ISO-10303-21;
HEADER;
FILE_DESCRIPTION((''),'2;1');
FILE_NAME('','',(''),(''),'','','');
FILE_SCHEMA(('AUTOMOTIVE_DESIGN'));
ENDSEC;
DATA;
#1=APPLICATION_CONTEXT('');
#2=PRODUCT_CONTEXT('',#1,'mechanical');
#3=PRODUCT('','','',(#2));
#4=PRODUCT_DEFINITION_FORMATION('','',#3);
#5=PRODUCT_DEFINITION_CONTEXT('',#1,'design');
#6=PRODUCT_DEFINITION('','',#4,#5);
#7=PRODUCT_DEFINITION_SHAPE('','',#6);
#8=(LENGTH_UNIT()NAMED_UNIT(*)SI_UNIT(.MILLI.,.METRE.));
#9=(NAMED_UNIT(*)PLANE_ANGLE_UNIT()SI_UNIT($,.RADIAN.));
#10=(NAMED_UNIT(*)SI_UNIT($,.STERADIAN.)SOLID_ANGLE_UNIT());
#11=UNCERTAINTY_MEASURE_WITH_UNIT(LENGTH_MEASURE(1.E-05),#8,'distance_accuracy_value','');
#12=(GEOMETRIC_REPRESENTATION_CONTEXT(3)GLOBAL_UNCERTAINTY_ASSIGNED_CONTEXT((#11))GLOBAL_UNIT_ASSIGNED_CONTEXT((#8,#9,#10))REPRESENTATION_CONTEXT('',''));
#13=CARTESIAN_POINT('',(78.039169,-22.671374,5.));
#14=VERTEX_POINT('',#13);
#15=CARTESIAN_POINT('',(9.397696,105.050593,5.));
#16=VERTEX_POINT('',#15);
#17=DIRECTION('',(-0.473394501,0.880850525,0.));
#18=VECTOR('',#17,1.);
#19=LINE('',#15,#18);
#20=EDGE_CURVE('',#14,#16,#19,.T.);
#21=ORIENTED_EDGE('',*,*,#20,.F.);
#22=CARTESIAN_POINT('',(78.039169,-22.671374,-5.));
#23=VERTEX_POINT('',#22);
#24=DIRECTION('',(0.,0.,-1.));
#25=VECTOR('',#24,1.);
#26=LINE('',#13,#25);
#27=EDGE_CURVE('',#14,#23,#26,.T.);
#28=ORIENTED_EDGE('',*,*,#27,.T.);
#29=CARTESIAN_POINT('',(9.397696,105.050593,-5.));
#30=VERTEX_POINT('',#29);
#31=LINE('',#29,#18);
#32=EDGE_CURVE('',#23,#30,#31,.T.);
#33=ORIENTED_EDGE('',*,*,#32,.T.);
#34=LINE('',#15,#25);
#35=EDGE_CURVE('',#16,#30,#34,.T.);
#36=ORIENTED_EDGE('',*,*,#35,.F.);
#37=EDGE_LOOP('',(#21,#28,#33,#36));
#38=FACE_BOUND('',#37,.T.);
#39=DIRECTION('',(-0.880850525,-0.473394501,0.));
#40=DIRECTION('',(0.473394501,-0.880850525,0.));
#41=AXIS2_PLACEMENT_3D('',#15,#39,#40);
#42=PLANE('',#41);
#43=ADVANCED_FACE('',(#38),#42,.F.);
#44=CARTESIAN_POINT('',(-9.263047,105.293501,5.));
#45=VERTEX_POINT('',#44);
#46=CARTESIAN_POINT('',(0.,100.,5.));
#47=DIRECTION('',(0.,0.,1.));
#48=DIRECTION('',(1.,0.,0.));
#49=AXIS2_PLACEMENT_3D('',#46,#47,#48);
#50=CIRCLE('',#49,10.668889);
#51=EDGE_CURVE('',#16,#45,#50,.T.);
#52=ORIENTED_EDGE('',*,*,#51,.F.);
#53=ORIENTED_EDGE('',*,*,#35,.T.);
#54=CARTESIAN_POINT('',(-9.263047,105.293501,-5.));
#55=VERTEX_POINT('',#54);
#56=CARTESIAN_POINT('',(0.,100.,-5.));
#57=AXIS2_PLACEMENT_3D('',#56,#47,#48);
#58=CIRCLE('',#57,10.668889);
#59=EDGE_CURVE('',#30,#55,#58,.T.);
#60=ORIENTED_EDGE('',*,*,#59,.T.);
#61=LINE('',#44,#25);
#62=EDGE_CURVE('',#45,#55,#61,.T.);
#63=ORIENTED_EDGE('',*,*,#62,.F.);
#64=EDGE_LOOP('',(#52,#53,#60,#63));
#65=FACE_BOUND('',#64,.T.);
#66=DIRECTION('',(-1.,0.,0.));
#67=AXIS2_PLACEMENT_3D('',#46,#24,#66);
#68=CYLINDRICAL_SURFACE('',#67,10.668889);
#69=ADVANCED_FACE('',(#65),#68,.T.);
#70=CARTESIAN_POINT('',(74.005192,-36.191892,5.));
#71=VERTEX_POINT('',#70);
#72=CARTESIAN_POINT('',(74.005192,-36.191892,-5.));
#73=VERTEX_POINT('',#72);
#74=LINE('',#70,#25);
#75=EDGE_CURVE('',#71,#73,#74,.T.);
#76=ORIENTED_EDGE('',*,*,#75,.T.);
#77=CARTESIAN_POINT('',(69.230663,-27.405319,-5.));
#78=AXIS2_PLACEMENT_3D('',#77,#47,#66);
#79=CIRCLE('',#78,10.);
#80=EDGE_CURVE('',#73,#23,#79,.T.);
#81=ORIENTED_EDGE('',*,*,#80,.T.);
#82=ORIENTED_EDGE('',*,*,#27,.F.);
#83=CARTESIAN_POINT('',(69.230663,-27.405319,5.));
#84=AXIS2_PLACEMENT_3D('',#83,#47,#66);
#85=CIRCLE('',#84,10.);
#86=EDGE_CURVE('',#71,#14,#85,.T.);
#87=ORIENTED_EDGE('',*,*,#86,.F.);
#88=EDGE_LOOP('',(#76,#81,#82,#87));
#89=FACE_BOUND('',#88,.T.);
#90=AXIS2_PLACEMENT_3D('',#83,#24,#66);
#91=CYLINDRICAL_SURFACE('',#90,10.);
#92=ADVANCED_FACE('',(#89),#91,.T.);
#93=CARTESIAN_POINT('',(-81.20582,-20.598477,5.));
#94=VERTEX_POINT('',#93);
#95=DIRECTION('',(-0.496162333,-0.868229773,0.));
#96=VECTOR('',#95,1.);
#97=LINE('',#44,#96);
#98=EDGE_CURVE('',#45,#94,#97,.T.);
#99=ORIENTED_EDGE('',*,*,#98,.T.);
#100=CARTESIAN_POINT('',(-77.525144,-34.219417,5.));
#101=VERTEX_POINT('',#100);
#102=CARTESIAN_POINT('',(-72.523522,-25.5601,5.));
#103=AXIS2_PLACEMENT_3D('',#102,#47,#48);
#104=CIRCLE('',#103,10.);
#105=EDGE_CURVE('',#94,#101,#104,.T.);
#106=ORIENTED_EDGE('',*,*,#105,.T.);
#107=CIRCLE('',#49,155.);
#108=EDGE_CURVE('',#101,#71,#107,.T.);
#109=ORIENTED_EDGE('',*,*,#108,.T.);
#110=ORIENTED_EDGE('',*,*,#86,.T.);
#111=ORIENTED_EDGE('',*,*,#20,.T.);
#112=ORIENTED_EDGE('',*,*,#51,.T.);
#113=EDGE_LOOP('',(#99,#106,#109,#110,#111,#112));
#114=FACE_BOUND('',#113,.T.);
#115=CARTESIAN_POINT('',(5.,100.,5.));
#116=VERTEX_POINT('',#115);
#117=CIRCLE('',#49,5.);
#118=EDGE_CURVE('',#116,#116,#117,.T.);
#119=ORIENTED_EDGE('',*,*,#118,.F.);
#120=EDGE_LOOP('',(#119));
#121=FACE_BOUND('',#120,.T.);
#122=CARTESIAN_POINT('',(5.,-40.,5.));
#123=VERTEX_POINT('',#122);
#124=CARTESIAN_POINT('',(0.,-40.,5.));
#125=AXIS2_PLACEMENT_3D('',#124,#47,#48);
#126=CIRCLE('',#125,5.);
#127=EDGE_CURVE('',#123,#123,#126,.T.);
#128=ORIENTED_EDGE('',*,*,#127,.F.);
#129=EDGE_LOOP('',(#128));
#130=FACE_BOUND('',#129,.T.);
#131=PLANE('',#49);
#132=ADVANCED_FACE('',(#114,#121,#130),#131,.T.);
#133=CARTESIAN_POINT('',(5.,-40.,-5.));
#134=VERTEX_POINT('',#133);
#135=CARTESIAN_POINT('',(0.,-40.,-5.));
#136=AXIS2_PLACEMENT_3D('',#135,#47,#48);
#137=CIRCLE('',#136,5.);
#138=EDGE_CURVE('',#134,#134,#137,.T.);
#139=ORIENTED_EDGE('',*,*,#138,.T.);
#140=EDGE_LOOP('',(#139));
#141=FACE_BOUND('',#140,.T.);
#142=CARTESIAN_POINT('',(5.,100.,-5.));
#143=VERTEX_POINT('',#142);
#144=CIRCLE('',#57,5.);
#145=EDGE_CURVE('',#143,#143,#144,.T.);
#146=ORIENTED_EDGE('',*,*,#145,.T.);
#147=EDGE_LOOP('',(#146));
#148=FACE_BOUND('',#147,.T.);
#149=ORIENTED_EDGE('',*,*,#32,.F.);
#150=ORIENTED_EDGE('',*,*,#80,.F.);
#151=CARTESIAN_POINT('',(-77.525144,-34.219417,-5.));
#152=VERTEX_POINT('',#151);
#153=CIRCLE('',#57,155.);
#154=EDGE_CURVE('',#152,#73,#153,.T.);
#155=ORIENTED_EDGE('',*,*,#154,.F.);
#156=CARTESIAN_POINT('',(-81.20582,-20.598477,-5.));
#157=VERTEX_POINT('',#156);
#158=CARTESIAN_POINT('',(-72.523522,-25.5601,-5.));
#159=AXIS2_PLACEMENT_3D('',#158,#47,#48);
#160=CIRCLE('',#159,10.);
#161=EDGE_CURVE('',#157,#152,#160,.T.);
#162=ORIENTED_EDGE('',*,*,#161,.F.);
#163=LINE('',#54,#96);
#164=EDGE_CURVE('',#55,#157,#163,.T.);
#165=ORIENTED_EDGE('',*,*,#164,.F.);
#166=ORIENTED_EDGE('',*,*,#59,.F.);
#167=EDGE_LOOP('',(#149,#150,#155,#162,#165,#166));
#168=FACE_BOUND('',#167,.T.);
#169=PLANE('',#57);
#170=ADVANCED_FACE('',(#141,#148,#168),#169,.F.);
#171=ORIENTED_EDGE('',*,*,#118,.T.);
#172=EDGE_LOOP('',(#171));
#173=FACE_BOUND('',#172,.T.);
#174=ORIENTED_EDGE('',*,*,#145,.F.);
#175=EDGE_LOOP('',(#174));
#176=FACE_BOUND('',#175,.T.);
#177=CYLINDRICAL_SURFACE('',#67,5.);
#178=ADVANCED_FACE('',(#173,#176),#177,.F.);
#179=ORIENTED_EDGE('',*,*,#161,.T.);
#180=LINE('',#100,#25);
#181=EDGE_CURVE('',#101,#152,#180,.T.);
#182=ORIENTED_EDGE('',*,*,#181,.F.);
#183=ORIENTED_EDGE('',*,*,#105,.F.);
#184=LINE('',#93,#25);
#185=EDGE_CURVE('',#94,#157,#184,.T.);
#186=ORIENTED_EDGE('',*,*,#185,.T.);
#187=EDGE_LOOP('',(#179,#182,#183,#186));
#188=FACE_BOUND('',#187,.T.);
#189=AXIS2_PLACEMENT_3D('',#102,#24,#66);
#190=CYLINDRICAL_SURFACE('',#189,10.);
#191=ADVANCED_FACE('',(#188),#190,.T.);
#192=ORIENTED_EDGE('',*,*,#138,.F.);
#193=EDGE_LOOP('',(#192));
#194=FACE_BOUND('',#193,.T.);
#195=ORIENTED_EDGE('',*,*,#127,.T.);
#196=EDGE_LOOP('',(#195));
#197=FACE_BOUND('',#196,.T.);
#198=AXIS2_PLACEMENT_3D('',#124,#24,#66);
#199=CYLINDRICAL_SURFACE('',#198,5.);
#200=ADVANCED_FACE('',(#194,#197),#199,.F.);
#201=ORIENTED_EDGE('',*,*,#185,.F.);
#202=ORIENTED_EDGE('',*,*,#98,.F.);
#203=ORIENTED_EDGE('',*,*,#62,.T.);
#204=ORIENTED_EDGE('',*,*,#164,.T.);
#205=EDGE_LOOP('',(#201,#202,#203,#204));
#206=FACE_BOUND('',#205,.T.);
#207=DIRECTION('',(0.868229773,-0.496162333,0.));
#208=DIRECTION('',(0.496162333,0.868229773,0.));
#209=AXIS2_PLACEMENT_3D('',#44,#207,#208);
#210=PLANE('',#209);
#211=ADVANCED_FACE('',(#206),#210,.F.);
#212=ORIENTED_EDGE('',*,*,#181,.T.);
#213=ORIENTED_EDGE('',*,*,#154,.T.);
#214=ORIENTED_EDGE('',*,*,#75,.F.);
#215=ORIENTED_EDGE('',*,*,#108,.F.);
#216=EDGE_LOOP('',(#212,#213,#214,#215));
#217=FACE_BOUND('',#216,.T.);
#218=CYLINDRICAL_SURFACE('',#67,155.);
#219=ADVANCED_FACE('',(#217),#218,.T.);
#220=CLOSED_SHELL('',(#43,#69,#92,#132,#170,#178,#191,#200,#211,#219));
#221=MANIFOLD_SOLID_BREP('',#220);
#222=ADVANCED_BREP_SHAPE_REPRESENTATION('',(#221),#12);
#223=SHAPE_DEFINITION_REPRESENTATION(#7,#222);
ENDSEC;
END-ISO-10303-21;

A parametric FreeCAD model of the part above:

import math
import FreeCAD as App
import Part
import Sketcher

doc = App.newDocument("Part")
body = doc.addObject("PartDesign::Body", "Body")

# Sketch on XY plane
sketch1 = doc.addObject("Sketcher::SketchObject", "Sketch")
body.addObject(sketch1)
sketch1.AttachmentSupport = (doc.XY_Plane, [""])
sketch1.MapMode = "FlatFace"
sketch1.addGeometry([
    Part.LineSegment(App.Vector(78, -23, 0), App.Vector(9, 105, 0)),  # 0
    Part.ArcOfCircle(Part.Circle(App.Vector(0, 100, 0), App.Vector(0, 0, 1), 11), math.radians(28), math.radians(150)),  # 1
    Part.LineSegment(App.Vector(-9, 105, 0), App.Vector(-81, -21, 0)),  # 2
    Part.ArcOfCircle(Part.Circle(App.Vector(-73, -26, 0), App.Vector(0, 0, 1), 10), math.radians(150), math.radians(240)),  # 3
    Part.ArcOfCircle(Part.Circle(App.Vector(0, 100, 0), App.Vector(0, 0, 1), 155), math.radians(-120), math.radians(-61)),  # 4
    Part.ArcOfCircle(Part.Circle(App.Vector(69, -27, 0), App.Vector(0, 0, 1), 10), math.radians(-61), math.radians(28)),  # 5
    Part.Circle(App.Vector(0, -40, 0), App.Vector(0, 0, 1), 5),  # 6
    Part.Circle(App.Vector(0, 100, 0), App.Vector(0, 0, 1), 5),  # 7
], False)
sketch1.addConstraint([
    Sketcher.Constraint("Tangent", 0, 2, 1, 1),
    Sketcher.Constraint("Tangent", 1, 2, 2, 1),
    Sketcher.Constraint("Tangent", 2, 2, 3, 1),
    Sketcher.Constraint("Tangent", 3, 2, 4, 1),
    Sketcher.Constraint("Tangent", 4, 2, 5, 1),
    Sketcher.Constraint("Tangent", 5, 2, 0, 1),
    Sketcher.Constraint("Coincident", 4, 3, 1, 3),
    Sketcher.Constraint("Coincident", 7, 3, 1, 3),
    Sketcher.Constraint("Equal", 3, 5),
    Sketcher.Constraint("Equal", 6, 7),
    Sketcher.Constraint("PointOnObject", 1, 3, -2),
    Sketcher.Constraint("PointOnObject", 6, 3, -2),
    Sketcher.Constraint("Diameter", 6, 10.0),
    Sketcher.Constraint("Radius", 3, 10.0),
    Sketcher.Constraint("Radius", 4, 155.0),
    Sketcher.Constraint("DistanceY", -1, 1, 1, 3, 100.0),
    Sketcher.Constraint("DistanceY", 6, 3, -1, 1, 40.0),
    Sketcher.Constraint("Radius", 1, 10.668889),
    Sketcher.Constraint("DistanceY", 3, 3, -1, 1, 25.5601),
    Sketcher.Constraint("DistanceY", 3, 2, 5, 3, 6.814099),
])
pad1 = doc.addObject("PartDesign::Pad", "Pad")
body.addObject(pad1)
pad1.Profile = sketch1
pad1.Length = 10
pad1.Midplane = True

doc.recompute()
